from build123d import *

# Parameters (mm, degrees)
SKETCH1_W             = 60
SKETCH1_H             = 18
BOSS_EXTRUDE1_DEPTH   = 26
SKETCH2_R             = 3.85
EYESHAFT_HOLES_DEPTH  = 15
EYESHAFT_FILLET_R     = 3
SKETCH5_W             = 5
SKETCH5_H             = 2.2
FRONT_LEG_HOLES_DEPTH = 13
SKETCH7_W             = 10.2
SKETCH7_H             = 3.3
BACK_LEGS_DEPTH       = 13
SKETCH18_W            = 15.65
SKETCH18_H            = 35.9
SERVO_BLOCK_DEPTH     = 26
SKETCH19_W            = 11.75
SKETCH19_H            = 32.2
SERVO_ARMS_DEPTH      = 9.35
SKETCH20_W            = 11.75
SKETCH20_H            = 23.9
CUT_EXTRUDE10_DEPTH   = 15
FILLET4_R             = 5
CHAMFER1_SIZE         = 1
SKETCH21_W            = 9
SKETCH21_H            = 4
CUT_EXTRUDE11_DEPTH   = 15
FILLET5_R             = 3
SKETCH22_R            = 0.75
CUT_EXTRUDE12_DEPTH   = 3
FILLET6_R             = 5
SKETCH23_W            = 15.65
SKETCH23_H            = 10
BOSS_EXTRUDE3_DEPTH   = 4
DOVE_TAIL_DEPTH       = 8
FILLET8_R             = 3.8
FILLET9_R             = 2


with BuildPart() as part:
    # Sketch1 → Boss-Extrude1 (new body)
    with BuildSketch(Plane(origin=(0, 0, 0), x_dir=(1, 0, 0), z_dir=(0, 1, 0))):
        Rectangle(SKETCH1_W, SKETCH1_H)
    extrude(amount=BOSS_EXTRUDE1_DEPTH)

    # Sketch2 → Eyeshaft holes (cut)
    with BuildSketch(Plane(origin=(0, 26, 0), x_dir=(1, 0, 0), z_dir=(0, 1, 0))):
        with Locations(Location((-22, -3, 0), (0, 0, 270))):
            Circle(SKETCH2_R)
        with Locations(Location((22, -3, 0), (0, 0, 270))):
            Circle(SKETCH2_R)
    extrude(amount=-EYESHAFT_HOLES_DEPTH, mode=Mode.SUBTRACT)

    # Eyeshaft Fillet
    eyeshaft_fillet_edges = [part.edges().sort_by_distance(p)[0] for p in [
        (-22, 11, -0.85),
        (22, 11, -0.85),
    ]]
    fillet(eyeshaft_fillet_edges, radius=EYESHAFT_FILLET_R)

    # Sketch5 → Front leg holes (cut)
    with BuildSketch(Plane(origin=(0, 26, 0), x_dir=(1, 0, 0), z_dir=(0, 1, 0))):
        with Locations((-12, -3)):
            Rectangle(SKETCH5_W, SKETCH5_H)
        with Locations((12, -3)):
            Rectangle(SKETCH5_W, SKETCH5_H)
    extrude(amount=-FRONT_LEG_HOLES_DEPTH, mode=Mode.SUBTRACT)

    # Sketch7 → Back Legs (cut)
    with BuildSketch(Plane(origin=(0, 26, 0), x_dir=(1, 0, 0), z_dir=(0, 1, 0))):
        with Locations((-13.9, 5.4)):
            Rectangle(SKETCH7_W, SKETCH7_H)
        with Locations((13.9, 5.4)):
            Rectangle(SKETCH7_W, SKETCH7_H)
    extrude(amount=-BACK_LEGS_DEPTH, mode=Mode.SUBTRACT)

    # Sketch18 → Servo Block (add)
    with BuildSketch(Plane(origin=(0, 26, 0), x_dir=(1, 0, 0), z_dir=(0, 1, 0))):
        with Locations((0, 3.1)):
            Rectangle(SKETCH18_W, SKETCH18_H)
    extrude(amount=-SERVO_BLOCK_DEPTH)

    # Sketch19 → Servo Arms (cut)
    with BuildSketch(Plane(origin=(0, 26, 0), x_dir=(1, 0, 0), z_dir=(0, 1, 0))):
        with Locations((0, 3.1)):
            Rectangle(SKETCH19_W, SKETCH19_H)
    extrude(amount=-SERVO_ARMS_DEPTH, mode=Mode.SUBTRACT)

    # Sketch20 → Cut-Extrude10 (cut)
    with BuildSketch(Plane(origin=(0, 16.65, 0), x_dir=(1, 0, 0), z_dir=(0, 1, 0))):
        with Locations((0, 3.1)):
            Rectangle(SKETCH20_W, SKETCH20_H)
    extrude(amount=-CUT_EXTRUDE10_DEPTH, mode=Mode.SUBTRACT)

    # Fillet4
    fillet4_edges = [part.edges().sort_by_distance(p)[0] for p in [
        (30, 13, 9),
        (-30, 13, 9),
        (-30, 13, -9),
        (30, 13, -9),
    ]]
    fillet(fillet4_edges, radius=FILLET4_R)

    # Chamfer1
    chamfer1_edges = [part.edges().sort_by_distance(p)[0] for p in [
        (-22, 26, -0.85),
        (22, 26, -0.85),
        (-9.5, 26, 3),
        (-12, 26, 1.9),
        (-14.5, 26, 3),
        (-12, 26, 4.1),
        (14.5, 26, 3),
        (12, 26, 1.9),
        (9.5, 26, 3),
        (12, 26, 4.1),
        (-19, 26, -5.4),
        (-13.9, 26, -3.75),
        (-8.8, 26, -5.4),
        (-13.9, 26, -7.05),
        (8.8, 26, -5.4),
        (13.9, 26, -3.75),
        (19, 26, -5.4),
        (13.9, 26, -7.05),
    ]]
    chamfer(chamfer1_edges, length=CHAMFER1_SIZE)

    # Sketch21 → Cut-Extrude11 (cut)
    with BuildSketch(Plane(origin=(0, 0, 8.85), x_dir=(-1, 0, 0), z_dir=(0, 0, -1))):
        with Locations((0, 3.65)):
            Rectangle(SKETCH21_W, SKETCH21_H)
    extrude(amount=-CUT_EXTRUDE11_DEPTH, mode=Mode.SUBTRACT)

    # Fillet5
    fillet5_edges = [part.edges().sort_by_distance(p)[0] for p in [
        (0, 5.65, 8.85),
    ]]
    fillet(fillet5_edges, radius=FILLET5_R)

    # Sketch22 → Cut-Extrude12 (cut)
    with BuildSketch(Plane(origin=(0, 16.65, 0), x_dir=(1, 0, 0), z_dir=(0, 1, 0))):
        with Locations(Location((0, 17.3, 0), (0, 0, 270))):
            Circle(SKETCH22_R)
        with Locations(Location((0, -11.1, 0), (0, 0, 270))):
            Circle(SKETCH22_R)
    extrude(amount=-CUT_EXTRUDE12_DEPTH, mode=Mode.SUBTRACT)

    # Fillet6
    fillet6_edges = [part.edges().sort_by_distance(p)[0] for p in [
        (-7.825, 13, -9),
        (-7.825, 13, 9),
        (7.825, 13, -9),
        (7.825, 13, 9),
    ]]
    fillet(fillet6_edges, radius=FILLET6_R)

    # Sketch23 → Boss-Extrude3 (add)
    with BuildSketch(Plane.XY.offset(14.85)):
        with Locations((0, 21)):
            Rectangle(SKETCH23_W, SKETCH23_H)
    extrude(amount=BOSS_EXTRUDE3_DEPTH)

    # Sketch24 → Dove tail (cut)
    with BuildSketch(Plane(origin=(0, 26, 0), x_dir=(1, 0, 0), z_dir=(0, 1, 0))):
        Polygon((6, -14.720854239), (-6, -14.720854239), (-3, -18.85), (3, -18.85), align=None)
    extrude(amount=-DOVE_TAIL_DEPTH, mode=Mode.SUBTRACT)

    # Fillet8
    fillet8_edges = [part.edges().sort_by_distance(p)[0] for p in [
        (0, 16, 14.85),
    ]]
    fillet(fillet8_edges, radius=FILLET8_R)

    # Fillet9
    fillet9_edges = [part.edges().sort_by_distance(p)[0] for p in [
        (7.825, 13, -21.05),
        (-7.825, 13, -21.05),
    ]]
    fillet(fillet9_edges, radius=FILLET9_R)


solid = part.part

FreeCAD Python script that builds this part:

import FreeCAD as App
import Part
import Sketcher
Q = App.Units.Quantity


def edges_at(feature, points):
    """Names of the edges that pass closest to the given points."""
    edges = feature.Shape.Edges
    near = lambda p: min(range(len(edges)), key=lambda i: edges[i].distToShape(Part.Vertex(*p))[0])
    return sorted({f"Edge{near(p) + 1}" for p in points})

doc = App.newDocument("Part")
body = doc.addObject("PartDesign::Body", "Body")

sketch1 = body.newObject("Sketcher::SketchObject", "Sketch")
sketch1.AttachmentSupport = (doc.getObject("XZ_Plane"), [""])
sketch1.MapMode = "FlatFace"
sketch1.addGeometry(Part.LineSegment(App.Vector(-30, -9, 0), App.Vector(-30, 9, 0)), False)
sketch1.addGeometry(Part.LineSegment(App.Vector(-30, 9, 0), App.Vector(30, 9, 0)), False)
sketch1.addGeometry(Part.LineSegment(App.Vector(30, 9, 0), App.Vector(30, -9, 0)), False)
sketch1.addGeometry(Part.LineSegment(App.Vector(30, -9, 0), App.Vector(-30, -9, 0)), False)
sketch1.addConstraint(Sketcher.Constraint("Coincident", 0, 2, 1, 1))
sketch1.addConstraint(Sketcher.Constraint("Coincident", 1, 2, 2, 1))
sketch1.addConstraint(Sketcher.Constraint("Coincident", 2, 2, 3, 1))
sketch1.addConstraint(Sketcher.Constraint("Coincident", 3, 2, 0, 1))
sketch1.addConstraint(Sketcher.Constraint("Vertical", 0))
sketch1.addConstraint(Sketcher.Constraint("Horizontal", 1))
sketch1.addConstraint(Sketcher.Constraint("Vertical", 2))
sketch1.addConstraint(Sketcher.Constraint("Horizontal", 3))
sketch1.addConstraint(Sketcher.Constraint("Symmetric", 0, 2, 2, 2, -1, 1))
sketch1.addConstraint(Sketcher.Constraint("DistanceX", 1, 1, 1, 2, 60.0))
sketch1.addConstraint(Sketcher.Constraint("DistanceY", 0, 1, 0, 2, 18.0))
pad1 = body.newObject("PartDesign::Pad", "Pad")
pad1.Profile = sketch1
pad1.Length = 26
pad1.Reversed = True

sketch2 = body.newObject("Sketcher::SketchObject", "Sketch001")
sketch2.AttachmentSupport = (doc.getObject("XZ_Plane"), [""])
sketch2.MapMode = "FlatFace"
sketch2.AttachmentOffset = App.Placement(App.Vector(0, 0, -26), App.Rotation())
sketch2.addGeometry(Part.Circle(App.Vector(-22, 3, 0), App.Vector(0, 0, 1), 3.9), False)
sketch2.addGeometry(Part.Circle(App.Vector(22, 3, 0), App.Vector(0, 0, 1), 3.9), False)
sketch2.addConstraint(Sketcher.Constraint("Equal", 0, 1))
sketch2.addConstraint(Sketcher.Constraint("Symmetric", 0, 3, 1, 3, -2))
sketch2.addConstraint(Sketcher.Constraint("Diameter", 0, 7.7))
sketch2.addConstraint(Sketcher.Constraint("DistanceX", 0, 3, -1, 1, 22.0))
sketch2.addConstraint(Sketcher.Constraint("DistanceY", -1, 1, 0, 3, 3.0))
pocket1 = body.newObject("PartDesign::Pocket", "Pocket")
pocket1.Profile = sketch2
pocket1.Length = 15
pocket1.Reversed = True
doc.recompute()

fillet = body.newObject("PartDesign::Fillet", "Fillet")
fillet.Base = (pocket1, edges_at(pocket1, [(-22, 11, -0.85), (22, 11, -0.85)]))
fillet.Radius = 3

sketch3 = body.newObject("Sketcher::SketchObject", "Sketch002")
sketch3.AttachmentSupport = (doc.getObject("XZ_Plane"), [""])
sketch3.MapMode = "FlatFace"
sketch3.AttachmentOffset = App.Placement(App.Vector(0, 0, -26), App.Rotation())
sketch3.addGeometry(Part.LineSegment(App.Vector(-14.5, 1.9, 0), App.Vector(-14.5, 4.1, 0)), False)
sketch3.addGeometry(Part.LineSegment(App.Vector(-14.5, 4.1, 0), App.Vector(-9.5, 4.1, 0)), False)
sketch3.addGeometry(Part.LineSegment(App.Vector(-9.5, 4.1, 0), App.Vector(-9.5, 1.9, 0)), False)
sketch3.addGeometry(Part.LineSegment(App.Vector(-9.5, 1.9, 0), App.Vector(-14.5, 1.9, 0)), False)
sketch3.addGeometry(Part.LineSegment(App.Vector(9.5, 1.9, 0), App.Vector(9.5, 4.1, 0)), False)
sketch3.addGeometry(Part.LineSegment(App.Vector(9.5, 4.1, 0), App.Vector(14.5, 4.1, 0)), False)
sketch3.addGeometry(Part.LineSegment(App.Vector(14.5, 4.1, 0), App.Vector(14.5, 1.9, 0)), False)
sketch3.addGeometry(Part.LineSegment(App.Vector(14.5, 1.9, 0), App.Vector(9.5, 1.9, 0)), False)
sketch3.addConstraint(Sketcher.Constraint("Coincident", 0, 2, 1, 1))
sketch3.addConstraint(Sketcher.Constraint("Coincident", 1, 2, 2, 1))
sketch3.addConstraint(Sketcher.Constraint("Coincident", 2, 2, 3, 1))
sketch3.addConstraint(Sketcher.Constraint("Coincident", 3, 2, 0, 1))
sketch3.addConstraint(Sketcher.Constraint("Coincident", 4, 2, 5, 1))
sketch3.addConstraint(Sketcher.Constraint("Coincident", 5, 2, 6, 1))
sketch3.addConstraint(Sketcher.Constraint("Coincident", 6, 2, 7, 1))
sketch3.addConstraint(Sketcher.Constraint("Coincident", 7, 2, 4, 1))
sketch3.addConstraint(Sketcher.Constraint("Vertical", 0))
sketch3.addConstraint(Sketcher.Constraint("Horizontal", 1))
sketch3.addConstraint(Sketcher.Constraint("Vertical", 2))
sketch3.addConstraint(Sketcher.Constraint("Horizontal", 3))
sketch3.addConstraint(Sketcher.Constraint("Vertical", 4))
sketch3.addConstraint(Sketcher.Constraint("Horizontal", 5))
sketch3.addConstraint(Sketcher.Constraint("Vertical", 6))
sketch3.addConstraint(Sketcher.Constraint("Horizontal", 7))
sketch3.addConstraint(Sketcher.Constraint("Symmetric", 1, 2, 4, 2, -2))
sketch3.addConstraint(Sketcher.Constraint("Symmetric", 3, 2, 6, 2, -2))
sketch3.addConstraint(Sketcher.Constraint("DistanceX", 1, 1, 1, 2, 5.0))
sketch3.addConstraint(Sketcher.Constraint("DistanceY", 0, 1, 0, 2, 2.2))
sketch3.addConstraint(Sketcher.Constraint("DistanceX", 1, 2, 4, 2, 19.0))
sketch3.addConstraint(Sketcher.Constraint("DistanceY", -1, 1, 0, 2, 4.1))
pocket2 = body.newObject("PartDesign::Pocket", "Pocket001")
pocket2.Profile = sketch3
pocket2.Length = 13
pocket2.Reversed = True

sketch4 = body.newObject("Sketcher::SketchObject", "Sketch003")
sketch4.AttachmentSupport = (doc.getObject("XZ_Plane"), [""])
sketch4.MapMode = "FlatFace"
sketch4.AttachmentOffset = App.Placement(App.Vector(0, 0, -26), App.Rotation())
sketch4.addGeometry(Part.LineSegment(App.Vector(-19, -7, 0), App.Vector(-19, -3.8, 0)), False)
sketch4.addGeometry(Part.LineSegment(App.Vector(-19, -3.8, 0), App.Vector(-8.8, -3.8, 0)), False)
sketch4.addGeometry(Part.LineSegment(App.Vector(-8.8, -3.8, 0), App.Vector(-8.8, -7, 0)), False)
sketch4.addGeometry(Part.LineSegment(App.Vector(-8.8, -7, 0), App.Vector(-19, -7, 0)), False)
sketch4.addGeometry(Part.LineSegment(App.Vector(8.8, -7, 0), App.Vector(8.8, -3.8, 0)), False)
sketch4.addGeometry(Part.LineSegment(App.Vector(8.8, -3.8, 0), App.Vector(19, -3.8, 0)), False)
sketch4.addGeometry(Part.LineSegment(App.Vector(19, -3.8, 0), App.Vector(19, -7, 0)), False)
sketch4.addGeometry(Part.LineSegment(App.Vector(19, -7, 0), App.Vector(8.8, -7, 0)), False)
sketch4.addConstraint(Sketcher.Constraint("Coincident", 0, 2, 1, 1))
sketch4.addConstraint(Sketcher.Constraint("Coincident", 1, 2, 2, 1))
sketch4.addConstraint(Sketcher.Constraint("Coincident", 2, 2, 3, 1))
sketch4.addConstraint(Sketcher.Constraint("Coincident", 3, 2, 0, 1))
sketch4.addConstraint(Sketcher.Constraint("Coincident", 4, 2, 5, 1))
sketch4.addConstraint(Sketcher.Constraint("Coincident", 5, 2, 6, 1))
sketch4.addConstraint(Sketcher.Constraint("Coincident", 6, 2, 7, 1))
sketch4.addConstraint(Sketcher.Constraint("Coincident", 7, 2, 4, 1))
sketch4.addConstraint(Sketcher.Constraint("Vertical", 0))
sketch4.addConstraint(Sketcher.Constraint("Horizontal", 1))
sketch4.addConstraint(Sketcher.Constraint("Vertical", 2))
sketch4.addConstraint(Sketcher.Constraint("Horizontal", 3))
sketch4.addConstraint(Sketcher.Constraint("Vertical", 4))
sketch4.addConstraint(Sketcher.Constraint("Horizontal", 5))
sketch4.addConstraint(Sketcher.Constraint("Vertical", 6))
sketch4.addConstraint(Sketcher.Constraint("Horizontal", 7))
sketch4.addConstraint(Sketcher.Constraint("Symmetric", 1, 2, 4, 2, -2))
sketch4.addConstraint(Sketcher.Constraint("Symmetric", 3, 2, 6, 2, -2))
sketch4.addConstraint(Sketcher.Constraint("DistanceX", 1, 1, 1, 2, 10.2))
sketch4.addConstraint(Sketcher.Constraint("DistanceY", 0, 1, 0, 2, 3.3))
sketch4.addConstraint(Sketcher.Constraint("DistanceX", 0, 2, -1, 1, 19.0))
sketch4.addConstraint(Sketcher.Constraint("DistanceY", 0, 2, -1, 1, 3.75))
pocket3 = body.newObject("PartDesign::Pocket", "Pocket002")
pocket3.Profile = sketch4
pocket3.Length = 13
pocket3.Reversed = True

sketch5 = body.newObject("Sketcher::SketchObject", "Sketch004")
sketch5.AttachmentSupport = (doc.getObject("XZ_Plane"), [""])
sketch5.MapMode = "FlatFace"
sketch5.AttachmentOffset = App.Placement(App.Vector(0, 0, -26), App.Rotation())
sketch5.addGeometry(Part.LineSegment(App.Vector(-8, -21, 0), App.Vector(-8, 15, 0)), False)
sketch5.addGeometry(Part.LineSegment(App.Vector(-8, 15, 0), App.Vector(8, 15, 0)), False)
sketch5.addGeometry(Part.LineSegment(App.Vector(8, 15, 0), App.Vector(8, -21, 0)), False)
sketch5.addGeometry(Part.LineSegment(App.Vector(8, -21, 0), App.Vector(-8, -21, 0)), False)
sketch5.addConstraint(Sketcher.Constraint("Coincident", 0, 2, 1, 1))
sketch5.addConstraint(Sketcher.Constraint("Coincident", 1, 2, 2, 1))
sketch5.addConstraint(Sketcher.Constraint("Coincident", 2, 2, 3, 1))
sketch5.addConstraint(Sketcher.Constraint("Coincident", 3, 2, 0, 1))
sketch5.addConstraint(Sketcher.Constraint("Vertical", 0))
sketch5.addConstraint(Sketcher.Constraint("Horizontal", 1))
sketch5.addConstraint(Sketcher.Constraint("Vertical", 2))
sketch5.addConstraint(Sketcher.Constraint("Horizontal", 3))
sketch5.addConstraint(Sketcher.Constraint("DistanceY", 0, 1, 0, 2, 35.9))
sketch5.addConstraint(Sketcher.Constraint("DistanceX", 1, 1, 1, 2, 15.65))
sketch5.addConstraint(Sketcher.Constraint("DistanceY", -1, 1, 0, 2, 14.85))
sketch5.addConstraint(Sketcher.Constraint("DistanceX", 0, 2, -1, 1, 7.825))
pad2 = body.newObject("PartDesign::Pad", "Pad001")
pad2.Profile = sketch5
pad2.Length = 26

sketch6 = body.newObject("Sketcher::SketchObject", "Sketch005")
sketch6.AttachmentSupport = (doc.getObject("XZ_Plane"), [""])
sketch6.MapMode = "FlatFace"
sketch6.AttachmentOffset = App.Placement(App.Vector(0, 0, -26), App.Rotation())
sketch6.addGeometry(Part.LineSegment(App.Vector(-6, -19, 0), App.Vector(-6, 13, 0)), False)
sketch6.addGeometry(Part.LineSegment(App.Vector(-6, 13, 0), App.Vector(6, 13, 0)), False)
sketch6.addGeometry(Part.LineSegment(App.Vector(6, 13, 0), App.Vector(6, -19, 0)), False)
sketch6.addGeometry(Part.LineSegment(App.Vector(6, -19, 0), App.Vector(-6, -19, 0)), False)
sketch6.addConstraint(Sketcher.Constraint("Coincident", 0, 2, 1, 1))
sketch6.addConstraint(Sketcher.Constraint("Coincident", 1, 2, 2, 1))
sketch6.addConstraint(Sketcher.Constraint("Coincident", 2, 2, 3, 1))
sketch6.addConstraint(Sketcher.Constraint("Coincident", 3, 2, 0, 1))
sketch6.addConstraint(Sketcher.Constraint("Vertical", 0))
sketch6.addConstraint(Sketcher.Constraint("Horizontal", 1))
sketch6.addConstraint(Sketcher.Constraint("Vertical", 2))
sketch6.addConstraint(Sketcher.Constraint("Horizontal", 3))
sketch6.addConstraint(Sketcher.Constraint("DistanceY", 0, 1, 0, 2, 32.2))
sketch6.addConstraint(Sketcher.Constraint("DistanceY", -1, 1, 0, 2, 13.0))
sketch6.addConstraint(Sketcher.Constraint("DistanceX", 1, 1, 1, 2, 11.75))
sketch6.addConstraint(Sketcher.Constraint("DistanceX", 0, 2, -1, 1, 5.875))
pocket4 = body.newObject("PartDesign::Pocket", "Pocket003")
pocket4.Profile = sketch6
pocket4.Length = 9.35
pocket4.Reversed = True

sketch7 = body.newObject("Sketcher::SketchObject", "Sketch006")
sketch7.AttachmentSupport = (doc.getObject("XZ_Plane"), [""])
sketch7.MapMode = "FlatFace"
sketch7.AttachmentOffset = App.Placement(App.Vector(0, 0, -16.65), App.Rotation())
sketch7.addGeometry(Part.LineSegment(App.Vector(-6, -15, 0), App.Vector(-6, 9, 0)), False)
sketch7.addGeometry(Part.LineSegment(App.Vector(-6, 9, 0), App.Vector(6, 9, 0)), False)
sketch7.addGeometry(Part.LineSegment(App.Vector(6, 9, 0), App.Vector(6, -15, 0)), False)
sketch7.addGeometry(Part.LineSegment(App.Vector(6, -15, 0), App.Vector(-6, -15, 0)), False)
sketch7.addConstraint(Sketcher.Constraint("Coincident", 0, 2, 1, 1))
sketch7.addConstraint(Sketcher.Constraint("Coincident", 1, 2, 2, 1))
sketch7.addConstraint(Sketcher.Constraint("Coincident", 2, 2, 3, 1))
sketch7.addConstraint(Sketcher.Constraint("Coincident", 3, 2, 0, 1))
sketch7.addConstraint(Sketcher.Constraint("Vertical", 0))
sketch7.addConstraint(Sketcher.Constraint("Horizontal", 1))
sketch7.addConstraint(Sketcher.Constraint("Vertical", 2))
sketch7.addConstraint(Sketcher.Constraint("Horizontal", 3))
sketch7.addConstraint(Sketcher.Constraint("DistanceY", 0, 1, 0, 2, 23.9))
sketch7.addConstraint(Sketcher.Constraint("DistanceX", 1, 1, 1, 2, 11.75))
sketch7.addConstraint(Sketcher.Constraint("DistanceY", -1, 1, 0, 2, 8.85))
sketch7.addConstraint(Sketcher.Constraint("DistanceX", 0, 2, -1, 1, 5.875))
pocket5 = body.newObject("PartDesign::Pocket", "Pocket004")
pocket5.Profile = sketch7
pocket5.Length = 15
pocket5.Reversed = True
doc.recompute()

fillet2 = body.newObject("PartDesign::Fillet", "Fillet001")
fillet2.Base = (pocket5, edges_at(pocket5, [
    (30, 13, 9),
    (-30, 13, 9),
    (-30, 13, -9),
    (30, 13, -9),
]))
fillet2.Radius = 5
doc.recompute()

chamfer = body.newObject("PartDesign::Chamfer", "Chamfer")
chamfer.Base = (fillet2, edges_at(fillet2, [
    (-22, 26, -0.85),
    (22, 26, -0.85),
    (-9.5, 26, 3),
    (-12, 26, 1.9),
    (-14.5, 26, 3),
    (-12, 26, 4.1),
    (14.5, 26, 3),
    (12, 26, 1.9),
    (9.5, 26, 3),
    (12, 26, 4.1),
    (-19, 26, -5.4),
    (-13.9, 26, -3.75),
    (-8.8, 26, -5.4),
    (-13.9, 26, -7.05),
    (8.8, 26, -5.4),
    (13.9, 26, -3.75),
    (19, 26, -5.4),
    (13.9, 26, -7.05),
]))
chamfer.Size = 1

sketch8 = body.newObject("Sketcher::SketchObject", "Sketch007")
sketch8.AttachmentSupport = (doc.getObject("XY_Plane"), [""])
sketch8.MapMode = "FlatFace"
sketch8.AttachmentOffset = App.Placement(App.Vector(0, 0, 8.85), App.Rotation())
sketch8.addGeometry(Part.LineSegment(App.Vector(4.5, 5.7, 0), App.Vector(4.5, 1.6, 0)), False)
sketch8.addGeometry(Part.LineSegment(App.Vector(4.5, 1.6, 0), App.Vector(-4.5, 1.6, 0)), False)
sketch8.addGeometry(Part.LineSegment(App.Vector(-4.5, 1.6, 0), App.Vector(-4.5, 5.7, 0)), False)
sketch8.addGeometry(Part.LineSegment(App.Vector(-4.5, 5.7, 0), App.Vector(4.5, 5.7, 0)), False)
sketch8.addConstraint(Sketcher.Constraint("Coincident", 0, 2, 1, 1))
sketch8.addConstraint(Sketcher.Constraint("Coincident", 1, 2, 2, 1))
sketch8.addConstraint(Sketcher.Constraint("Coincident", 2, 2, 3, 1))
sketch8.addConstraint(Sketcher.Constraint("Coincident", 3, 2, 0, 1))
sketch8.addConstraint(Sketcher.Constraint("Vertical", 0))
sketch8.addConstraint(Sketcher.Constraint("Horizontal", 1))
sketch8.addConstraint(Sketcher.Constraint("Vertical", 2))
sketch8.addConstraint(Sketcher.Constraint("Horizontal", 3))
sketch8.addConstraint(Sketcher.Constraint("DistanceX", 1, 2, 1, 1, 9.0))
sketch8.addConstraint(Sketcher.Constraint("DistanceY", 0, 2, 0, 1, 4.0))
sketch8.addConstraint(Sketcher.Constraint("DistanceX", -1, 1, 0, 2, 4.5))
sketch8.addConstraint(Sketcher.Constraint("DistanceY", -1, 1, 0, 2, 1.65))
pocket6 = body.newObject("PartDesign::Pocket", "Pocket005")
pocket6.Profile = sketch8
pocket6.Length = 15
pocket6.Reversed = True
doc.recompute()

fillet3 = body.newObject("PartDesign::Fillet", "Fillet002")
fillet3.Base = (pocket6, edges_at(pocket6, [(0, 5.65, 8.85)]))
fillet3.Radius = 3

sketch9 = body.newObject("Sketcher::SketchObject", "Sketch008")
sketch9.AttachmentSupport = (doc.getObject("XZ_Plane"), [""])
sketch9.MapMode = "FlatFace"
sketch9.AttachmentOffset = App.Placement(App.Vector(0, 0, -16.65), App.Rotation())
sketch9.addGeometry(Part.Circle(App.Vector(0, -17.3, 0), App.Vector(0, 0, 1), 0.8), False)
sketch9.addGeometry(Part.Circle(App.Vector(0, 11.1, 0), App.Vector(0, 0, 1), 0.8), False)
sketch9.addConstraint(Sketcher.Constraint("Equal", 0, 1))
sketch9.addConstraint(Sketcher.Constraint("PointOnObject", 0, 3, -2))
sketch9.addConstraint(Sketcher.Constraint("PointOnObject", 1, 3, -2))
sketch9.addConstraint(Sketcher.Constraint("Diameter", 0, 1.5))
sketch9.addConstraint(Sketcher.Constraint("DistanceY", 0, 3, -1, 1, 17.3))
sketch9.addConstraint(Sketcher.Constraint("DistanceY", -1, 1, 1, 3, 11.1))
pocket7 = body.newObject("PartDesign::Pocket", "Pocket006")
pocket7.Profile = sketch9
pocket7.Length = 3
pocket7.Reversed = True
doc.recompute()

fillet4 = body.newObject("PartDesign::Fillet", "Fillet003")
fillet4.Base = (pocket7, edges_at(pocket7, [
    (-7.825, 13, -9),
    (-7.825, 13, 9),
    (7.825, 13, -9),
    (7.825, 13, 9),
]))
fillet4.Radius = 5

sketch10 = body.newObject("Sketcher::SketchObject", "Sketch009")
sketch10.AttachmentSupport = (doc.getObject("XY_Plane"), [""])
sketch10.MapMode = "FlatFace"
sketch10.AttachmentOffset = App.Placement(App.Vector(0, 0, 14.85), App.Rotation())
sketch10.addGeometry(Part.LineSegment(App.Vector(-8, 26, 0), App.Vector(-8, 16, 0)), False)
sketch10.addGeometry(Part.LineSegment(App.Vector(-8, 16, 0), App.Vector(8, 16, 0)), False)
sketch10.addGeometry(Part.LineSegment(App.Vector(8, 16, 0), App.Vector(8, 26, 0)), False)
sketch10.addGeometry(Part.LineSegment(App.Vector(8, 26, 0), App.Vector(-8, 26, 0)), False)
sketch10.addConstraint(Sketcher.Constraint("Coincident", 0, 2, 1, 1))
sketch10.addConstraint(Sketcher.Constraint("Coincident", 1, 2, 2, 1))
sketch10.addConstraint(Sketcher.Constraint("Coincident", 2, 2, 3, 1))
sketch10.addConstraint(Sketcher.Constraint("Coincident", 3, 2, 0, 1))
sketch10.addConstraint(Sketcher.Constraint("Vertical", 0))
sketch10.addConstraint(Sketcher.Constraint("Horizontal", 1))
sketch10.addConstraint(Sketcher.Constraint("Vertical", 2))
sketch10.addConstraint(Sketcher.Constraint("Horizontal", 3))
sketch10.addConstraint(Sketcher.Constraint("DistanceY", 0, 2, 0, 1, 10.0))
sketch10.addConstraint(Sketcher.Constraint("DistanceY", -1, 1, 0, 2, 16.0))
sketch10.addConstraint(Sketcher.Constraint("DistanceX", 1, 1, 1, 2, 15.65))
sketch10.addConstraint(Sketcher.Constraint("DistanceX", 0, 2, -1, 1, 7.825))
pad3 = body.newObject("PartDesign::Pad", "Pad002")
pad3.Profile = sketch10
pad3.Length = 4

sketch11 = body.newObject("Sketcher::SketchObject", "Sketch010")
sketch11.AttachmentSupport = (doc.getObject("XZ_Plane"), [""])
sketch11.MapMode = "FlatFace"
sketch11.AttachmentOffset = App.Placement(App.Vector(0, 0, -26), App.Rotation())
sketch11.addGeometry(Part.LineSegment(App.Vector(6, 15, 0), App.Vector(-6, 15, 0)), False)
sketch11.addGeometry(Part.LineSegment(App.Vector(-6, 15, 0), App.Vector(-3, 19, 0)), False)
sketch11.addGeometry(Part.LineSegment(App.Vector(-3, 19, 0), App.Vector(3, 19, 0)), False)
sketch11.addGeometry(Part.LineSegment(App.Vector(3, 19, 0), App.Vector(6, 15, 0)), False)
sketch11.addConstraint(Sketcher.Constraint("Coincident", 0, 2, 1, 1))
sketch11.addConstraint(Sketcher.Constraint("Coincident", 1, 2, 2, 1))
sketch11.addConstraint(Sketcher.Constraint("Coincident", 2, 2, 3, 1))
sketch11.addConstraint(Sketcher.Constraint("Coincident", 3, 2, 0, 1))
sketch11.addConstraint(Sketcher.Constraint("Horizontal", 0))
sketch11.addConstraint(Sketcher.Constraint("Horizontal", 2))
sketch11.addConstraint(Sketcher.Constraint("Equal", 1, 3))
sketch11.addConstraint(Sketcher.Constraint("DistanceX", 0, 2, 0, 1, 12.0))
sketch11.addConstraint(Sketcher.Constraint("DistanceX", 2, 1, 2, 2, 6.0))
sketch11.addConstraint(Sketcher.Constraint("Angle", 1, Q("54 deg")))
sketch11.addConstraint(Sketcher.Constraint("DistanceX", 0, 2, -1, 1, 6.0))
sketch11.addConstraint(Sketcher.Constraint("DistanceY", -1, 1, 1, 2, 18.85))
pocket8 = body.newObject("PartDesign::Pocket", "Pocket007")
pocket8.Profile = sketch11
pocket8.Length = 8
pocket8.Reversed = True
doc.recompute()

fillet5 = body.newObject("PartDesign::Fillet", "Fillet004")
fillet5.Base = (pocket8, edges_at(pocket8, [(0, 16, 14.85)]))
fillet5.Radius = 3.8
doc.recompute()

fillet6 = body.newObject("PartDesign::Fillet", "Fillet005")
fillet6.Base = (fillet5, edges_at(fillet5, [(7.825, 13, -21.05), (-7.825, 13, -21.05)]))
fillet6.Radius = 2

doc.recompute()
